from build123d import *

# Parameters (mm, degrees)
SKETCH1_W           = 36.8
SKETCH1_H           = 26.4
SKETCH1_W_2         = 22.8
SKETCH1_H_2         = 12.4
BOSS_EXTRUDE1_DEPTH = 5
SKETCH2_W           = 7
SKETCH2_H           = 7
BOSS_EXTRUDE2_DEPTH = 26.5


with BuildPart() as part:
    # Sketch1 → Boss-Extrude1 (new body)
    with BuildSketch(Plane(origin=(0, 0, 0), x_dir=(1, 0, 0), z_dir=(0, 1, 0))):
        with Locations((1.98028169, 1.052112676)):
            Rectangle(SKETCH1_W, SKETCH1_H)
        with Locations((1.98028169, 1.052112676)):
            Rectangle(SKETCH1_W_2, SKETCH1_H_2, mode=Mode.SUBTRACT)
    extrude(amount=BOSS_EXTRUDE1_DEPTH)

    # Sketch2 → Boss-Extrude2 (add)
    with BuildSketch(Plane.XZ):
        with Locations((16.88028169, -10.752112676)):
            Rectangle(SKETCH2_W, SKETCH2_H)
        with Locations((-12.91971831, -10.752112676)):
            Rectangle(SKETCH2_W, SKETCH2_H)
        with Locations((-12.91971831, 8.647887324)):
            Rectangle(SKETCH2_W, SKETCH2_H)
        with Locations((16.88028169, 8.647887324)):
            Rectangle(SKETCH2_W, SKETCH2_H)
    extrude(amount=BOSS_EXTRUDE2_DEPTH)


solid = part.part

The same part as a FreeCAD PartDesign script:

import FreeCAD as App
import Part
import Sketcher
from FreeCAD import Vector


def add_polygon(sketch, points):
    """Adds a closed chain of lines whose ends are joined by coincident constraints."""
    first, n = sketch.GeometryCount, len(points)
    for a, b in zip(points, points[1:] + points[:1]):
        sketch.addGeometry(Part.LineSegment(App.Vector(*a, 0), App.Vector(*b, 0)), False)
    for i in range(n):
        sketch.addConstraint(Sketcher.Constraint("Coincident", first + i, 2, first + (i + 1) % n, 1))

doc = App.newDocument("Part")
body = doc.addObject("PartDesign::Body", "Body")

# Sketch on XZ plane
sketch1 = doc.addObject("Sketcher::SketchObject", "Sketch")
body.addObject(sketch1)
sketch1.AttachmentSupport = (doc.XZ_Plane, [""])
sketch1.MapMode = "FlatFace"
add_polygon(sketch1, [(-16, -14), (-16, 12), (20, 12), (20, -14)])  # lines 0-3
add_polygon(sketch1, [(13, 5), (-9, 5), (-9, -7), (13, -7)])  # lines 4-7
sketch1.addConstraint([
    Sketcher.Constraint("Vertical", 0),
    Sketcher.Constraint("Horizontal", 1),
    Sketcher.Constraint("Vertical", 2),
    Sketcher.Constraint("Horizontal", 3),
    Sketcher.Constraint("Horizontal", 4),
    Sketcher.Constraint("Vertical", 5),
    Sketcher.Constraint("Horizontal", 6),
    Sketcher.Constraint("Vertical", 7),
    Sketcher.Constraint("DistanceX", 1, 1, 1, 2, 36.8),
    Sketcher.Constraint("DistanceX", 4, 2, 4, 1, 22.8),
    Sketcher.Constraint("DistanceY", 0, 1, 0, 2, 26.4),
    Sketcher.Constraint("DistanceY", 5, 2, 5, 1, 12.4),
    Sketcher.Constraint("DistanceX", 0, 2, 4, 2, 7.0),
    Sketcher.Constraint("DistanceY", 4, 2, 0, 2, 7.0),
    Sketcher.Constraint("DistanceX", 0, 2, -1, 1, 16.419718),
    Sketcher.Constraint("DistanceY", -1, 1, 0, 2, 12.147887),
])
pad1 = doc.addObject("PartDesign::Pad", "Pad")
body.addObject(pad1)
pad1.Profile = sketch1
pad1.Length = 5
pad1.Reversed = True

# Sketch on XZ plane
sketch2 = doc.addObject("Sketcher::SketchObject", "Sketch001")
body.addObject(sketch2)
sketch2.AttachmentSupport = (doc.XZ_Plane, [""])
sketch2.MapMode = "FlatFace"
add_polygon(sketch2, [(13, -7), (13, -14), (20, -14), (20, -7)])  # lines 0-3
add_polygon(sketch2, [(-16, -7), (-16, -14), (-9, -14), (-9, -7)])  # lines 4-7
add_polygon(sketch2, [(-16, 12), (-16, 5), (-9, 5), (-9, 12)])  # lines 8-11
add_polygon(sketch2, [(13, 12), (13, 5), (20, 5), (20, 12)])  # lines 12-15
sketch2.addConstraint([
    Sketcher.Constraint("Vertical", 0),
    Sketcher.Constraint("Horizontal", 1),
    Sketcher.Constraint("Vertical", 2),
    Sketcher.Constraint("Horizontal", 3),
    Sketcher.Constraint("Vertical", 4),
    Sketcher.Constraint("Horizontal", 5),
    Sketcher.Constraint("Vertical", 6),
    Sketcher.Constraint("Horizontal", 7),
    Sketcher.Constraint("Vertical", 8),
    Sketcher.Constraint("Horizontal", 9),
    Sketcher.Constraint("Vertical", 10),
    Sketcher.Constraint("Horizontal", 11),
    Sketcher.Constraint("Vertical", 12),
    Sketcher.Constraint("Horizontal", 13),
    Sketcher.Constraint("Vertical", 14),
    Sketcher.Constraint("Horizontal", 15),
    Sketcher.Constraint("Horizontal", 1, 2, 4, 2),
    Sketcher.Constraint("Horizontal", 3, 2, 6, 2),
    Sketcher.Constraint("Horizontal", 9, 2, 12, 2),
    Sketcher.Constraint("Horizontal", 11, 2, 14, 2),
    Sketcher.Constraint("Vertical", 7, 2, 8, 2),
    Sketcher.Constraint("Vertical", 6, 2, 9, 2),
    Sketcher.Constraint("Vertical", 3, 2, 12, 2),
    Sketcher.Constraint("Vertical", 2, 2, 13, 2),
    Sketcher.Constraint("Equal", 3, 5),
    Sketcher.Constraint("Equal", 15, 0),
    Sketcher.Constraint("Equal", 6, 8),
    Sketcher.Constraint("DistanceX", 1, 1, 1, 2, 7.0),
    Sketcher.Constraint("DistanceX", 4, 2, 0, 2, 29.8),
    Sketcher.Constraint("DistanceY", 7, 2, 8, 2, 12.4),
    Sketcher.Constraint("DistanceX", -1, 1, 0, 2, 13.380282),
    Sketcher.Constraint("DistanceY", 0, 2, -1, 1, 14.252113),
])
pad2 = doc.addObject("PartDesign::Pad", "Pad001")
body.addObject(pad2)
pad2.Profile = sketch2
pad2.Length = 26.5

doc.recompute()
